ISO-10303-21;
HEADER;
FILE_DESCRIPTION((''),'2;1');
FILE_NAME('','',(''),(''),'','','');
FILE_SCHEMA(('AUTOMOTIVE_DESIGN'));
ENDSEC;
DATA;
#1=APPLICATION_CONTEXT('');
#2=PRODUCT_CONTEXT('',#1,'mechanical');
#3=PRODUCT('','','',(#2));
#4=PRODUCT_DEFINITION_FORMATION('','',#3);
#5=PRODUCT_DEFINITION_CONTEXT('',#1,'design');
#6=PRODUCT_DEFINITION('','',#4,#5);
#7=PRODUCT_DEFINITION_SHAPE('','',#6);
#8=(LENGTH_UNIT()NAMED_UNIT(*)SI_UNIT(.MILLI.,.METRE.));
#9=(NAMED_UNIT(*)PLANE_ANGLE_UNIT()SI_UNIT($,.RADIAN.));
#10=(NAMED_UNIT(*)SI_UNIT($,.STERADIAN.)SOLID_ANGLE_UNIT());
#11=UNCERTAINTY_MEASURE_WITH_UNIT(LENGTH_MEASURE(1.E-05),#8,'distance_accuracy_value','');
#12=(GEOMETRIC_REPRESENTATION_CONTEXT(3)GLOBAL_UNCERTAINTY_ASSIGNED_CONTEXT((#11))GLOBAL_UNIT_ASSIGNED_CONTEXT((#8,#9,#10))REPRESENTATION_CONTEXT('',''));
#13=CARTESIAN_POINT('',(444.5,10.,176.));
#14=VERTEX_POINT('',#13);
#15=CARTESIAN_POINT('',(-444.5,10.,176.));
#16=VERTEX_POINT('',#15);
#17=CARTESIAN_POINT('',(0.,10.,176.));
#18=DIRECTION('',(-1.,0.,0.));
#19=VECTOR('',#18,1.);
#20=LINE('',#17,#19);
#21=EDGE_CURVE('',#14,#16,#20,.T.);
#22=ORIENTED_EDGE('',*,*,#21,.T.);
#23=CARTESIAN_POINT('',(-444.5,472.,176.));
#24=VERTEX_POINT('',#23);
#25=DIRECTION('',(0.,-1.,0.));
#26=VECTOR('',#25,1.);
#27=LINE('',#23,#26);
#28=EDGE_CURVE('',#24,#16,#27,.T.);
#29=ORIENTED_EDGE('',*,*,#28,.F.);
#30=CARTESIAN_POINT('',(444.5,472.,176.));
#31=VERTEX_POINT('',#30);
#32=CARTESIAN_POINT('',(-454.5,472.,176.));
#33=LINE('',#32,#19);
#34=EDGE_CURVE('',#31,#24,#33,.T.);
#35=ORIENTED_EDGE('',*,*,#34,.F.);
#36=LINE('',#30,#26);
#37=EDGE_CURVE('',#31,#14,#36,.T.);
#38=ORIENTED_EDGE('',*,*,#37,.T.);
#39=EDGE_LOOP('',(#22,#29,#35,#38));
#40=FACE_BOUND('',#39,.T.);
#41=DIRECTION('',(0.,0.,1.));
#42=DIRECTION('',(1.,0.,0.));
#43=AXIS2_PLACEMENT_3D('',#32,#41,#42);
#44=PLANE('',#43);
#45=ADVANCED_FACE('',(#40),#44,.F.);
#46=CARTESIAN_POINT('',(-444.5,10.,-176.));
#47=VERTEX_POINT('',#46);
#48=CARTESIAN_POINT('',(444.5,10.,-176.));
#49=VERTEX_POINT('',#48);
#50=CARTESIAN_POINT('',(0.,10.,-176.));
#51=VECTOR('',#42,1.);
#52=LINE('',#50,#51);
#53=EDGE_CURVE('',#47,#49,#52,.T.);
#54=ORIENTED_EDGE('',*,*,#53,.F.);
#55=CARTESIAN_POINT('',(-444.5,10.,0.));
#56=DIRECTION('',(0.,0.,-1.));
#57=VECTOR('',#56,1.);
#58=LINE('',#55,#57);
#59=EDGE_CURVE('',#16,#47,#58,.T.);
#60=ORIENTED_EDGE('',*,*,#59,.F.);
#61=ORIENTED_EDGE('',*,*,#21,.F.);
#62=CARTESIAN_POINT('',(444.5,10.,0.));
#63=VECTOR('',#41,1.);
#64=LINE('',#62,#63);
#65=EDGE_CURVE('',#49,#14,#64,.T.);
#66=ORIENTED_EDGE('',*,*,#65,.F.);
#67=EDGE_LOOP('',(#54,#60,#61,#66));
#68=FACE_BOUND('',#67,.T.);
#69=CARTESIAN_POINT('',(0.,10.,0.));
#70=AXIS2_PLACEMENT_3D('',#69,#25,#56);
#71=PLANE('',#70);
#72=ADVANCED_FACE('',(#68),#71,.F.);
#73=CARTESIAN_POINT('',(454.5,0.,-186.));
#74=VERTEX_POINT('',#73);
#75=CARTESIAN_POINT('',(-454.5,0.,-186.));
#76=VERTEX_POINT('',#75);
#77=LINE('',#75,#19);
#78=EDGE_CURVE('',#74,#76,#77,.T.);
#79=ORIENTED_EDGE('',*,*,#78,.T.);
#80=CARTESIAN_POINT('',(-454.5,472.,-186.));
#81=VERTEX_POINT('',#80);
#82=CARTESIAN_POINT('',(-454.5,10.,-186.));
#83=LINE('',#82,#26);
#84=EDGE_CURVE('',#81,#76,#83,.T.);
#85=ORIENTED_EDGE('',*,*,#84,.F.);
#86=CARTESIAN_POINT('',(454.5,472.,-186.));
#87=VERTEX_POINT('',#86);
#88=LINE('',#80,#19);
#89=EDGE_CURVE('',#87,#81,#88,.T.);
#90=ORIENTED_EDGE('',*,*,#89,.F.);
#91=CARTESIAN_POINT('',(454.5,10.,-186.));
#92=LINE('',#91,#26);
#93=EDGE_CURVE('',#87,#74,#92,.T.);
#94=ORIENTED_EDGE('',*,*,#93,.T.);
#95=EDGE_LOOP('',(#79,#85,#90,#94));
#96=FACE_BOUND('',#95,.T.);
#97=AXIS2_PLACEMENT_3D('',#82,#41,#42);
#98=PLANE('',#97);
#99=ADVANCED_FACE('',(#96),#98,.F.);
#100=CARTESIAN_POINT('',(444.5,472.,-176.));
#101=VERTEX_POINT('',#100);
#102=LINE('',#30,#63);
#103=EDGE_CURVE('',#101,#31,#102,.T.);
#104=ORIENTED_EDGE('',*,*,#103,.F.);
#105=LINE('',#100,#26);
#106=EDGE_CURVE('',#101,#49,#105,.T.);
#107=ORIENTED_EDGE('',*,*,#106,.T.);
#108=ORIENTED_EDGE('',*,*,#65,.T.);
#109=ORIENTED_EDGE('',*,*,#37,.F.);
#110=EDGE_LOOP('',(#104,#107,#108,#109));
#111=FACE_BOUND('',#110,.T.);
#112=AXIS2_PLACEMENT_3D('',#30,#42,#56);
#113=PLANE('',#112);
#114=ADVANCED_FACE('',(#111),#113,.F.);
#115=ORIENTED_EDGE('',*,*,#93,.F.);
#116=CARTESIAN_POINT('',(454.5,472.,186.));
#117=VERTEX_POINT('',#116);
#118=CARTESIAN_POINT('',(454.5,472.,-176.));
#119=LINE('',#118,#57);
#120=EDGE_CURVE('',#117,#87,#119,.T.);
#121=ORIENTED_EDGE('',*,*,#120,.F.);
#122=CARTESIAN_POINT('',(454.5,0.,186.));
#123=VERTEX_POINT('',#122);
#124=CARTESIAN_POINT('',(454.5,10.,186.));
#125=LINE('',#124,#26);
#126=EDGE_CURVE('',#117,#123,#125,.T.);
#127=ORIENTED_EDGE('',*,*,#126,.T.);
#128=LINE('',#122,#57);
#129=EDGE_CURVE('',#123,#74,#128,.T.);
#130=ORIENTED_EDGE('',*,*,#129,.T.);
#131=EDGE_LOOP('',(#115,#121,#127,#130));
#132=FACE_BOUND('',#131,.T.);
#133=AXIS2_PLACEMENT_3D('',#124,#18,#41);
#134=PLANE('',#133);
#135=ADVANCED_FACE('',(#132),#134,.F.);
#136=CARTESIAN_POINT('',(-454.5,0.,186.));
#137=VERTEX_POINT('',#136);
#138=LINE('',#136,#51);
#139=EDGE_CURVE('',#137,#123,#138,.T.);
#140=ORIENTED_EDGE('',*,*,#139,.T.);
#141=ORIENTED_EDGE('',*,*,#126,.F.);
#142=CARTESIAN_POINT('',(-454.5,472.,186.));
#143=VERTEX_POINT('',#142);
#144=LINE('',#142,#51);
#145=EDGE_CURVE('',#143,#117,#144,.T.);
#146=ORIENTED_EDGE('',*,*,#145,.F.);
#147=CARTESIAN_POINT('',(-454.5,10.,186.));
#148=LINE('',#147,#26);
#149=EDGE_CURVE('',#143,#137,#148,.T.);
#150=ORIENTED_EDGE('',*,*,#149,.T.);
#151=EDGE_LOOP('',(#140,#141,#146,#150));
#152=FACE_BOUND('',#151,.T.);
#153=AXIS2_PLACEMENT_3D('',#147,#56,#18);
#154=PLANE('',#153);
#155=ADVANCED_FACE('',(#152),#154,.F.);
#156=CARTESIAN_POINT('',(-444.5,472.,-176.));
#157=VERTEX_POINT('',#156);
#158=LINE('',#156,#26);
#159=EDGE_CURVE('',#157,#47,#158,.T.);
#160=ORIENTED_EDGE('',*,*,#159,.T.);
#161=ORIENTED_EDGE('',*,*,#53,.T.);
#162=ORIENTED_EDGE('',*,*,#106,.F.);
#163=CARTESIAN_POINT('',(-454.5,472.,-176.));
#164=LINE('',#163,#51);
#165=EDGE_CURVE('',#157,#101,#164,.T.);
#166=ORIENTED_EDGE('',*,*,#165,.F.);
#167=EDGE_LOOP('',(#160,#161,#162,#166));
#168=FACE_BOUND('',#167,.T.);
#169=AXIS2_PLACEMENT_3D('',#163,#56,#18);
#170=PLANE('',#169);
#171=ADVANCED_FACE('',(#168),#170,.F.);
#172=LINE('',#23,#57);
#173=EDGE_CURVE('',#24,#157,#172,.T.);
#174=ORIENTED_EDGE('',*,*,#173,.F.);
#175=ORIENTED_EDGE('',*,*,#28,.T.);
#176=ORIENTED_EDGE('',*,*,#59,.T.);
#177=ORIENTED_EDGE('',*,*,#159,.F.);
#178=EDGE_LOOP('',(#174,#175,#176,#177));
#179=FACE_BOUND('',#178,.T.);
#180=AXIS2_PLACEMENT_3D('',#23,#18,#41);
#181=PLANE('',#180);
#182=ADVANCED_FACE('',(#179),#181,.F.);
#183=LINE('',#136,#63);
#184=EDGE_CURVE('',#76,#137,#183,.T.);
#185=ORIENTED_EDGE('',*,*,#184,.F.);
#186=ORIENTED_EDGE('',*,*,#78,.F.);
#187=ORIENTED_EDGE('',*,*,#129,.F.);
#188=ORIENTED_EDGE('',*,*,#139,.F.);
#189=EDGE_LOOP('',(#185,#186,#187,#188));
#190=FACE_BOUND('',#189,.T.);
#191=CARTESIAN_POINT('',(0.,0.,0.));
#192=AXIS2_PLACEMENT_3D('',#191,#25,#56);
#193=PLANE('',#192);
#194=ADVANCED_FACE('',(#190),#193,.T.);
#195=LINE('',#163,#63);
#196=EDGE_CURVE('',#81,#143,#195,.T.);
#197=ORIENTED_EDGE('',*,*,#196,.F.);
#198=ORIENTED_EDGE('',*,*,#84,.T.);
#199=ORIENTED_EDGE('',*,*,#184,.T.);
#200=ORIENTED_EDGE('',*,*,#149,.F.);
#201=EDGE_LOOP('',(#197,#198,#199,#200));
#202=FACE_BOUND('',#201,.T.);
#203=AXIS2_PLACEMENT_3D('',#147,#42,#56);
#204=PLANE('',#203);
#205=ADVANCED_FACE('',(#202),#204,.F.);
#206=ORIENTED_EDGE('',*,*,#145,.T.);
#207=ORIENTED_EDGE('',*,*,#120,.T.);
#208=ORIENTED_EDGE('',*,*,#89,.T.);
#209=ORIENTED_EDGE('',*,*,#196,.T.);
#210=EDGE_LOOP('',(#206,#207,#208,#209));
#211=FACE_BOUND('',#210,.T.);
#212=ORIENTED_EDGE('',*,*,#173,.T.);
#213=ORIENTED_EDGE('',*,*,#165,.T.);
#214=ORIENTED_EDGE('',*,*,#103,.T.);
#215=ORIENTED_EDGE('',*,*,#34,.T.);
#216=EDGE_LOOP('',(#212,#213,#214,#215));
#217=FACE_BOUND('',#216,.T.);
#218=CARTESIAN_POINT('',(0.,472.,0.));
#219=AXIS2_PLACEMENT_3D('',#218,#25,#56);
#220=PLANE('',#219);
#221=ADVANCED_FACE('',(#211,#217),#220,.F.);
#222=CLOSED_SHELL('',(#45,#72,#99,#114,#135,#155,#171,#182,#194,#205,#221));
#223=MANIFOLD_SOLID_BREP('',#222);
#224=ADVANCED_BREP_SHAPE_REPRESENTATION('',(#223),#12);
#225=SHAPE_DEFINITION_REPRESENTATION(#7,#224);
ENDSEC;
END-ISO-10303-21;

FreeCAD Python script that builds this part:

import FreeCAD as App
import Part
import Sketcher

V = App.Vector

doc = App.newDocument("Part")
params = doc.addObject("Spreadsheet::Sheet", "Params")
for row, (alias, value) in enumerate([
    ("sketch1_width", "909 mm"),
    ("sketch1_height", "372 mm"),
    ("pad1_length", "10 mm"),
    ("sketch2_width", "909 mm"),
    ("sketch2_height", "10 mm"),
    ("pad2_length", "472 mm"),
    ("sketch3_width", "909 mm"),
    ("sketch3_height", "10 mm"),
    ("pad3_length", "472 mm"),
    ("sketch4_width", "10 mm"),
    ("sketch4_height", "352 mm"),
    ("pad4_length", "472 mm"),
    ("sketch5_width", "10 mm"),
    ("sketch5_height", "352 mm"),
    ("pad5_length", "472 mm"),
], start=1):
    params.set(f"A{row}", alias)
    params.set(f"B{row}", "=" + value)
    params.setAlias(f"B{row}", alias)

body = doc.addObject("PartDesign::Body", "Body")

# Sketch on XZ plane
sketch1 = body.newObject("Sketcher::SketchObject", "Sketch")
sketch1.AttachmentSupport = (doc.getObject("XZ_Plane"), [""])
sketch1.MapMode = "FlatFace"
sketch1.addGeometry([
    Part.LineSegment(V(-454.5, -186, 0), V(-454.5, 186, 0)),
    Part.LineSegment(V(-454.5, 186, 0), V(454.5, 186, 0)),
    Part.LineSegment(V(454.5, 186, 0), V(454.5, -186, 0)),
    Part.LineSegment(V(454.5, -186, 0), V(-454.5, -186, 0)),
], False)
sketch1.addConstraint([
    Sketcher.Constraint("Coincident", 0, 2, 1, 1),
    Sketcher.Constraint("Coincident", 1, 2, 2, 1),
    Sketcher.Constraint("Coincident", 2, 2, 3, 1),
    Sketcher.Constraint("Coincident", 3, 2, 0, 1),
    Sketcher.Constraint("Vertical", 0),
    Sketcher.Constraint("Horizontal", 1),
    Sketcher.Constraint("Vertical", 2),
    Sketcher.Constraint("Horizontal", 3),
    Sketcher.Constraint("Symmetric", 0, 2, 2, 2, -1, 1),
    Sketcher.Constraint("DistanceX", 1, 1, 1, 2, 909.0),
    Sketcher.Constraint("DistanceY", 0, 1, 0, 2, 372.0),
])
sketch1.setExpression("Constraints[9]", "Params.sketch1_width")
sketch1.setExpression("Constraints[10]", "Params.sketch1_height")
pad1 = body.newObject("PartDesign::Pad", "Pad")
pad1.Profile = sketch1
pad1.setExpression("Length", "Params.pad1_length")
pad1.Reversed = True

# Sketch on XZ plane
sketch2 = body.newObject("Sketcher::SketchObject", "Sketch001")
sketch2.AttachmentSupport = (doc.getObject("XZ_Plane"), [""])
sketch2.MapMode = "FlatFace"
sketch2.addGeometry([
    Part.LineSegment(V(-454.5, -186, 0), V(-454.5, -176, 0)),
    Part.LineSegment(V(-454.5, -176, 0), V(454.5, -176, 0)),
    Part.LineSegment(V(454.5, -176, 0), V(454.5, -186, 0)),
    Part.LineSegment(V(454.5, -186, 0), V(-454.5, -186, 0)),
], False)
sketch2.addConstraint([
    Sketcher.Constraint("Coincident", 0, 2, 1, 1),
    Sketcher.Constraint("Coincident", 1, 2, 2, 1),
    Sketcher.Constraint("Coincident", 2, 2, 3, 1),
    Sketcher.Constraint("Coincident", 3, 2, 0, 1),
    Sketcher.Constraint("Vertical", 0),
    Sketcher.Constraint("Horizontal", 1),
    Sketcher.Constraint("Vertical", 2),
    Sketcher.Constraint("Horizontal", 3),
    Sketcher.Constraint("DistanceX", 1, 1, 1, 2, 909.0),
    Sketcher.Constraint("DistanceY", 0, 1, 0, 2, 10.0),
    Sketcher.Constraint("DistanceY", 0, 2, -1, 1, 176.0),
    Sketcher.Constraint("DistanceX", 0, 2, -1, 1, 454.5),
])
sketch2.setExpression("Constraints[8]", "Params.sketch2_width")
sketch2.setExpression("Constraints[9]", "Params.sketch2_height")
pad2 = body.newObject("PartDesign::Pad", "Pad001")
pad2.Profile = sketch2
pad2.setExpression("Length", "Params.pad2_length")
pad2.Reversed = True

# Sketch on XZ plane
sketch3 = body.newObject("Sketcher::SketchObject", "Sketch002")
sketch3.AttachmentSupport = (doc.getObject("XZ_Plane"), [""])
sketch3.MapMode = "FlatFace"
sketch3.addGeometry([
    Part.LineSegment(V(-454.5, 176, 0), V(-454.5, 186, 0)),
    Part.LineSegment(V(-454.5, 186, 0), V(454.5, 186, 0)),
    Part.LineSegment(V(454.5, 186, 0), V(454.5, 176, 0)),
    Part.LineSegment(V(454.5, 176, 0), V(-454.5, 176, 0)),
], False)
sketch3.addConstraint([
    Sketcher.Constraint("Coincident", 0, 2, 1, 1),
    Sketcher.Constraint("Coincident", 1, 2, 2, 1),
    Sketcher.Constraint("Coincident", 2, 2, 3, 1),
    Sketcher.Constraint("Coincident", 3, 2, 0, 1),
    Sketcher.Constraint("Vertical", 0),
    Sketcher.Constraint("Horizontal", 1),
    Sketcher.Constraint("Vertical", 2),
    Sketcher.Constraint("Horizontal", 3),
    Sketcher.Constraint("DistanceX", 1, 1, 1, 2, 909.0),
    Sketcher.Constraint("DistanceY", 0, 1, 0, 2, 10.0),
    Sketcher.Constraint("DistanceY", -1, 1, 0, 2, 186.0),
    Sketcher.Constraint("DistanceX", 0, 2, -1, 1, 454.5),
])
sketch3.setExpression("Constraints[8]", "Params.sketch3_width")
sketch3.setExpression("Constraints[9]", "Params.sketch3_height")
pad3 = body.newObject("PartDesign::Pad", "Pad002")
pad3.Profile = sketch3
pad3.setExpression("Length", "Params.pad3_length")
pad3.Reversed = True

# Sketch on XZ plane
sketch4 = body.newObject("Sketcher::SketchObject", "Sketch003")
sketch4.AttachmentSupport = (doc.getObject("XZ_Plane"), [""])
sketch4.MapMode = "FlatFace"
sketch4.addGeometry([
    Part.LineSegment(V(444.5, -176, 0), V(444.5, 176, 0)),
    Part.LineSegment(V(444.5, 176, 0), V(454.5, 176, 0)),
    Part.LineSegment(V(454.5, 176, 0), V(454.5, -176, 0)),
    Part.LineSegment(V(454.5, -176, 0), V(444.5, -176, 0)),
], False)
sketch4.addConstraint([
    Sketcher.Constraint("Coincident", 0, 2, 1, 1),
    Sketcher.Constraint("Coincident", 1, 2, 2, 1),
    Sketcher.Constraint("Coincident", 2, 2, 3, 1),
    Sketcher.Constraint("Coincident", 3, 2, 0, 1),
    Sketcher.Constraint("Vertical", 0),
    Sketcher.Constraint("Horizontal", 1),
    Sketcher.Constraint("Vertical", 2),
    Sketcher.Constraint("Horizontal", 3),
    Sketcher.Constraint("DistanceX", 1, 1, 1, 2, 10.0),
    Sketcher.Constraint("DistanceY", 0, 1, 0, 2, 352.0),
    Sketcher.Constraint("DistanceY", -1, 1, 0, 2, 176.0),
    Sketcher.Constraint("DistanceX", -1, 1, 0, 2, 444.5),
])
sketch4.setExpression("Constraints[8]", "Params.sketch4_width")
sketch4.setExpression("Constraints[9]", "Params.sketch4_height")
pad4 = body.newObject("PartDesign::Pad", "Pad003")
pad4.Profile = sketch4
pad4.setExpression("Length", "Params.pad4_length")
pad4.Reversed = True

# Sketch on XZ plane
sketch5 = body.newObject("Sketcher::SketchObject", "Sketch004")
sketch5.AttachmentSupport = (doc.getObject("XZ_Plane"), [""])
sketch5.MapMode = "FlatFace"
sketch5.addGeometry([
    Part.LineSegment(V(-454.5, -176, 0), V(-454.5, 176, 0)),
    Part.LineSegment(V(-454.5, 176, 0), V(-444.5, 176, 0)),
    Part.LineSegment(V(-444.5, 176, 0), V(-444.5, -176, 0)),
    Part.LineSegment(V(-444.5, -176, 0), V(-454.5, -176, 0)),
], False)
sketch5.addConstraint([
    Sketcher.Constraint("Coincident", 0, 2, 1, 1),
    Sketcher.Constraint("Coincident", 1, 2, 2, 1),
    Sketcher.Constraint("Coincident", 2, 2, 3, 1),
    Sketcher.Constraint("Coincident", 3, 2, 0, 1),
    Sketcher.Constraint("Vertical", 0),
    Sketcher.Constraint("Horizontal", 1),
    Sketcher.Constraint("Vertical", 2),
    Sketcher.Constraint("Horizontal", 3),
    Sketcher.Constraint("DistanceX", 1, 1, 1, 2, 10.0),
    Sketcher.Constraint("DistanceY", 0, 1, 0, 2, 352.0),
    Sketcher.Constraint("DistanceY", -1, 1, 0, 2, 176.0),
    Sketcher.Constraint("DistanceX", 0, 2, -1, 1, 454.5),
])
sketch5.setExpression("Constraints[8]", "Params.sketch5_width")
sketch5.setExpression("Constraints[9]", "Params.sketch5_height")
pad5 = body.newObject("PartDesign::Pad", "Pad004")
pad5.Profile = sketch5
pad5.setExpression("Length", "Params.pad5_length")
pad5.Reversed = True

doc.recompute()
